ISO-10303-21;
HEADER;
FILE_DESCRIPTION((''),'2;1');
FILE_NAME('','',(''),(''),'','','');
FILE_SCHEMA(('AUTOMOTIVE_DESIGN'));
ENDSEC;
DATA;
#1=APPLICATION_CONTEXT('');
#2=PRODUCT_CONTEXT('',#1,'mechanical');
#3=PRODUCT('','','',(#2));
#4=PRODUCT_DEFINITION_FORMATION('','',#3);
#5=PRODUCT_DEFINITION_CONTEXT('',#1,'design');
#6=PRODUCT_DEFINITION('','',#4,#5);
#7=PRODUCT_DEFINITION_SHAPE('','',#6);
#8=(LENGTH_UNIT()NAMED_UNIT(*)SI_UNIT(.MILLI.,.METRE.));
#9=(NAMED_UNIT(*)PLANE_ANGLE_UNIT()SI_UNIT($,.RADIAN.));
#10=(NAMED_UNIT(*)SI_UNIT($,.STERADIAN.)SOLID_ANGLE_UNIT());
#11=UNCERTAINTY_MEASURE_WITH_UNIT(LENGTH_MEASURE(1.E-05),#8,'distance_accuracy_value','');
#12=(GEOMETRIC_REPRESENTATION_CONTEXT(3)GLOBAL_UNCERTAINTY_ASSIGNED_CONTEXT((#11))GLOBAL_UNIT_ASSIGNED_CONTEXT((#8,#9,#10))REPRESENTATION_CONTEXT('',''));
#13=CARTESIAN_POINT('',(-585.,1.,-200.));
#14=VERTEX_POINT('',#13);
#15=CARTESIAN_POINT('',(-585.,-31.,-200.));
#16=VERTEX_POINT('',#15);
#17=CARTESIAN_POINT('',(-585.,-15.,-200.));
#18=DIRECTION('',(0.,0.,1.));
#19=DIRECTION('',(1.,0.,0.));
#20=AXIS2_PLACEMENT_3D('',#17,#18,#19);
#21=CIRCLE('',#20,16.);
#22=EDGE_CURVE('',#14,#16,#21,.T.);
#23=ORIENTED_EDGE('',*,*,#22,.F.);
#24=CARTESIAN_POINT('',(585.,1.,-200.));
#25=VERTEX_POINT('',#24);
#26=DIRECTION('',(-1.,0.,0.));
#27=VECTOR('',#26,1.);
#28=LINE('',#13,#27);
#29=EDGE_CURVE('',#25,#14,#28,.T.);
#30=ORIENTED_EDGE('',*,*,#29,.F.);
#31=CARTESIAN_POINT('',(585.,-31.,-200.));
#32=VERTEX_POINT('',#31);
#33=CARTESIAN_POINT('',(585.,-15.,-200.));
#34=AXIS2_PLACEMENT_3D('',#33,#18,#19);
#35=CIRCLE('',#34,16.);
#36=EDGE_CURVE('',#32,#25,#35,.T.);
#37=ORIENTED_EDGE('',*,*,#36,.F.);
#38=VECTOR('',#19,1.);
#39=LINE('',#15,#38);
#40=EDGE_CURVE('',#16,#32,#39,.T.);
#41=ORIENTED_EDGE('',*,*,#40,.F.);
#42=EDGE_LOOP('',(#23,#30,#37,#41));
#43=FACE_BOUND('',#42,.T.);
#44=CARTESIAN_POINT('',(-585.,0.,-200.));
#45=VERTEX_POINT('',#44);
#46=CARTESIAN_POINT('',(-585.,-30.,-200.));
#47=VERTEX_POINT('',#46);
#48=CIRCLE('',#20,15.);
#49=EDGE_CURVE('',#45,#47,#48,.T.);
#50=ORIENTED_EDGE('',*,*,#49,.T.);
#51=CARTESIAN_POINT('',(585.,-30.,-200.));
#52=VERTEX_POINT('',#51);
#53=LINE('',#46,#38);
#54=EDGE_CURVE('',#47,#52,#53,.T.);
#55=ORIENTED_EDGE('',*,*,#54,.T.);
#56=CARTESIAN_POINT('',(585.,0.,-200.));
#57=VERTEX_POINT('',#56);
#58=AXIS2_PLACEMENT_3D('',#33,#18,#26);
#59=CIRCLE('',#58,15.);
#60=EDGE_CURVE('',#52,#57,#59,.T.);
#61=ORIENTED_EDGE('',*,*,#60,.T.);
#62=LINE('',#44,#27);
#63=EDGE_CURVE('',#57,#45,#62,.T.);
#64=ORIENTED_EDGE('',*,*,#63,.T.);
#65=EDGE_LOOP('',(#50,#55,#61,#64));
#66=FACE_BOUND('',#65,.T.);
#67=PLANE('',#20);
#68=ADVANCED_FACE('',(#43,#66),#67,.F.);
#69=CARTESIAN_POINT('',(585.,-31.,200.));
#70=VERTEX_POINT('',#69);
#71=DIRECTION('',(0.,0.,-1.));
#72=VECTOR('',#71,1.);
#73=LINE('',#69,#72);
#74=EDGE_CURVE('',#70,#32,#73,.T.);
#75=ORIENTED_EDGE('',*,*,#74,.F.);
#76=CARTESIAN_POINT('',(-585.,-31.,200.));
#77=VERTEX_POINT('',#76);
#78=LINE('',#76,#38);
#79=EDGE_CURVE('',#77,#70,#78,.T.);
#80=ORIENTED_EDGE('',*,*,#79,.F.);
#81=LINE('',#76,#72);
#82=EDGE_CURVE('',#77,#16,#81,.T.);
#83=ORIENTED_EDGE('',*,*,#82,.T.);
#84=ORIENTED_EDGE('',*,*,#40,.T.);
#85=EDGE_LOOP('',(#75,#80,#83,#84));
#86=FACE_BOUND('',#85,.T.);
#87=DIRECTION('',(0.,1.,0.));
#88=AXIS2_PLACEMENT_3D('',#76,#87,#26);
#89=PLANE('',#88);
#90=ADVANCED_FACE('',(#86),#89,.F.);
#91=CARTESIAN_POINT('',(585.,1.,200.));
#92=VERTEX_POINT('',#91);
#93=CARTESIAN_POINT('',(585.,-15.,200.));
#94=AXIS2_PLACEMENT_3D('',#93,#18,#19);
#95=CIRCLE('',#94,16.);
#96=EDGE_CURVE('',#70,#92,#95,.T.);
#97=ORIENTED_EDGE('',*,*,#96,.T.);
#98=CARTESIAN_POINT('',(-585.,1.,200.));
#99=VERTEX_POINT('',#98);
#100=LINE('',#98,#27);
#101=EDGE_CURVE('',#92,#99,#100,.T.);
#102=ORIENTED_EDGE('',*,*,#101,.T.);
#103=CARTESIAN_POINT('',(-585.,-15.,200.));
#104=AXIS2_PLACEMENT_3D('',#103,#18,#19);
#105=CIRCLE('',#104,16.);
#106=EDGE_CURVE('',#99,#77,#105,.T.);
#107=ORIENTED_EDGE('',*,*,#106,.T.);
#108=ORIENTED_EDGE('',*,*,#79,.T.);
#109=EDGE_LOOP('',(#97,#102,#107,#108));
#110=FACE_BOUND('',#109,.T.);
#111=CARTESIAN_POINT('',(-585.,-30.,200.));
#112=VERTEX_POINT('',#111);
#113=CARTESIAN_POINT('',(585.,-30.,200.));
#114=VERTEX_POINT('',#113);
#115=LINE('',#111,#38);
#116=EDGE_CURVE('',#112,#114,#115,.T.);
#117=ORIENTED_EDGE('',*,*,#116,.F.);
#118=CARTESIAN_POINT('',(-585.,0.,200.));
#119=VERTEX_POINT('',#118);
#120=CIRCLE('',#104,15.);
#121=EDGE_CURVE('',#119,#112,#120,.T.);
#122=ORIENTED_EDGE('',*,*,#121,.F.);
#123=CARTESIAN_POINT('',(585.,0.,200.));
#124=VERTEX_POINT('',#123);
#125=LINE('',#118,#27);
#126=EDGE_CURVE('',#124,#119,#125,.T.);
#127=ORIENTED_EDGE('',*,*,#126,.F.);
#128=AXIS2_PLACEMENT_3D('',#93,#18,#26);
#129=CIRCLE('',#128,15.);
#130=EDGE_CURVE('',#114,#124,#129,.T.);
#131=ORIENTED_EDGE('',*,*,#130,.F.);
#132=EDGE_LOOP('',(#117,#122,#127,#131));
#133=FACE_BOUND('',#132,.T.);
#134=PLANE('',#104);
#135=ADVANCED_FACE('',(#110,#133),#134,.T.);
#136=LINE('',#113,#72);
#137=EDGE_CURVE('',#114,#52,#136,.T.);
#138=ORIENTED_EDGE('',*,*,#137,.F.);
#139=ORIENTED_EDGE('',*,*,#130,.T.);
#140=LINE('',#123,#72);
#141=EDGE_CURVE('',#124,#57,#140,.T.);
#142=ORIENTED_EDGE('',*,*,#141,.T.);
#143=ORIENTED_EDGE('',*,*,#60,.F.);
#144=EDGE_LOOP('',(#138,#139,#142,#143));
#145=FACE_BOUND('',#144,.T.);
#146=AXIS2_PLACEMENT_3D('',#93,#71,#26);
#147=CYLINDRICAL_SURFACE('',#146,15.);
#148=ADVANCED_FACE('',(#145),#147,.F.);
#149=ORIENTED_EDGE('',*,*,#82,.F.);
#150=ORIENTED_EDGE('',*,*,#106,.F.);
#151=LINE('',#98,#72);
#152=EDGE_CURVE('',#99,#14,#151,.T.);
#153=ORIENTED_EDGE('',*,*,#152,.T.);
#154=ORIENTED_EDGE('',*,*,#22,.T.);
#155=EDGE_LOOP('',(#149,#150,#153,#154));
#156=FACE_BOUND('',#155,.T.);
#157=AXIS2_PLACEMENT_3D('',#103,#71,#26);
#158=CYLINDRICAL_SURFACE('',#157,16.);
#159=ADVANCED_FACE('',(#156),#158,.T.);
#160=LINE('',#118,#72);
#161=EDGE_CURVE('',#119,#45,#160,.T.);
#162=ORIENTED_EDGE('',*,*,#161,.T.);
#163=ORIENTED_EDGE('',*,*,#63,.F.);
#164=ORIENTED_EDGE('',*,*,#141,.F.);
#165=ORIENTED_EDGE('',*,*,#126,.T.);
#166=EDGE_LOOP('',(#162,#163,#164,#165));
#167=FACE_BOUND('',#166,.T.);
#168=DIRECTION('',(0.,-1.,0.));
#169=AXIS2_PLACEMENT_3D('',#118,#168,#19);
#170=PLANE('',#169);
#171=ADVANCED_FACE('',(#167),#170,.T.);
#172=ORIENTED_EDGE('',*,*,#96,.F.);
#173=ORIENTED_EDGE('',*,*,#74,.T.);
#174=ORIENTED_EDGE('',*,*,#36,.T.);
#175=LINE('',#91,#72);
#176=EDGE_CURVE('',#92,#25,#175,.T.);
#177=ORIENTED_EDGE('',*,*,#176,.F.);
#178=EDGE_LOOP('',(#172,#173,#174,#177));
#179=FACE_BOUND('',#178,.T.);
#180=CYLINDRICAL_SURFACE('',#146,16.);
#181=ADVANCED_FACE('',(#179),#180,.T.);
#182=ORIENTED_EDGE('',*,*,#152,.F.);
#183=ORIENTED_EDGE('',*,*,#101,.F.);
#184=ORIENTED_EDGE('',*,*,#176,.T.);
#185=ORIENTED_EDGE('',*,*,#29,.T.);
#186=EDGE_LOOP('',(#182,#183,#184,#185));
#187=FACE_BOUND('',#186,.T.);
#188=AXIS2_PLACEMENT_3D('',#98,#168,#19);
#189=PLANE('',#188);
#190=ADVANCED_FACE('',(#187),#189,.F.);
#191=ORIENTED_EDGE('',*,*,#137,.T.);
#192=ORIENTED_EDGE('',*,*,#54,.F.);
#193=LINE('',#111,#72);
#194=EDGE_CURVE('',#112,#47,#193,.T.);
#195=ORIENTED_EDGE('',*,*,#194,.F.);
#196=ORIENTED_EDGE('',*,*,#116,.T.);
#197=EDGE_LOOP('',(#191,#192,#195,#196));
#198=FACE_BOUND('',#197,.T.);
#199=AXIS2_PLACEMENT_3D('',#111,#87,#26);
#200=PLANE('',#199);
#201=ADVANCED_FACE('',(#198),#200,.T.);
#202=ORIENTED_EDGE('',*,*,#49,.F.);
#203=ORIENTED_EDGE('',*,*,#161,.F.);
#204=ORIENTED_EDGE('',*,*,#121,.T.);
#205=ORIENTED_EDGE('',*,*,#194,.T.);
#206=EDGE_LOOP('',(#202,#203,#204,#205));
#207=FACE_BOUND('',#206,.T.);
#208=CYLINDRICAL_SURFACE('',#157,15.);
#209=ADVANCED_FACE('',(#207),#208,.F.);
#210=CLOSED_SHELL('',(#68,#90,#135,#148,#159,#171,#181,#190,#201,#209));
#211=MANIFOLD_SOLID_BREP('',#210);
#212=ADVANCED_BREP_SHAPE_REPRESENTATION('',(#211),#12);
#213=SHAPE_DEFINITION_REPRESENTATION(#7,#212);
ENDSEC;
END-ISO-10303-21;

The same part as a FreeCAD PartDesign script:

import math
import FreeCAD as App
import Part
import Sketcher

V = App.Vector

doc = App.newDocument("Part")
body = doc.addObject("PartDesign::Body", "Body")

# Sketch on XY plane
sketch1 = doc.addObject("Sketcher::SketchObject", "Sketch")
body.addObject(sketch1)
sketch1.AttachmentSupport = (doc.XY_Plane, [""])
sketch1.MapMode = "FlatFace"
sketch1.addGeometry([
    Part.LineSegment(V(-585, -31, 0), V(585, -31, 0)),  # 0
    Part.ArcOfCircle(Part.Circle(V(585, -15, 0), V(0, 0, 1), 16), math.radians(-90), math.radians(90)),  # 1
    Part.LineSegment(V(585, 1, 0), V(-585, 1, 0)),  # 2
    Part.ArcOfCircle(Part.Circle(V(-585, -15, 0), V(0, 0, 1), 16), math.radians(90), math.radians(270)),  # 3
    Part.LineSegment(V(585, -30, 0), V(-585, -30, 0)),  # 4
    Part.ArcOfCircle(Part.Circle(V(-585, -15, 0), V(0, 0, 1), 15), math.radians(90), math.radians(270)),  # 5
    Part.LineSegment(V(-585, 0, 0), V(585, 0, 0)),  # 6
    Part.ArcOfCircle(Part.Circle(V(585, -15, 0), V(0, 0, 1), 15), math.radians(-90), math.radians(90)),  # 7
], False)
sketch1.addConstraint([
    Sketcher.Constraint("Tangent", 0, 2, 1, 1),
    Sketcher.Constraint("Tangent", 1, 2, 2, 1),
    Sketcher.Constraint("Tangent", 2, 2, 3, 1),
    Sketcher.Constraint("Tangent", 3, 2, 0, 1),
    Sketcher.Constraint("Tangent", 4, 2, 5, 2),
    Sketcher.Constraint("Tangent", 5, 1, 6, 1),
    Sketcher.Constraint("Tangent", 6, 2, 7, 2),
    Sketcher.Constraint("Tangent", 7, 1, 4, 1),
    Sketcher.Constraint("Horizontal", 0),
    Sketcher.Constraint("Horizontal", 2),
    Sketcher.Constraint("Horizontal", 4),
    Sketcher.Constraint("Horizontal", 6),
    Sketcher.Constraint("Coincident", 5, 3, 3, 3),
    Sketcher.Constraint("Symmetric", 5, 1, 6, 2, -1, 1),
    Sketcher.Constraint("Vertical", 7, 3, 0, 2),
    Sketcher.Constraint("Radius", 1, 16.0),
    Sketcher.Constraint("Radius", 5, 15.0),
    Sketcher.Constraint("DistanceX", 0, 1, 0, 2, 1170.0),
])
pad1 = doc.addObject("PartDesign::Pad", "Pad")
body.addObject(pad1)
pad1.Profile = sketch1
pad1.Length = 400
pad1.Midplane = True

doc.recompute()
